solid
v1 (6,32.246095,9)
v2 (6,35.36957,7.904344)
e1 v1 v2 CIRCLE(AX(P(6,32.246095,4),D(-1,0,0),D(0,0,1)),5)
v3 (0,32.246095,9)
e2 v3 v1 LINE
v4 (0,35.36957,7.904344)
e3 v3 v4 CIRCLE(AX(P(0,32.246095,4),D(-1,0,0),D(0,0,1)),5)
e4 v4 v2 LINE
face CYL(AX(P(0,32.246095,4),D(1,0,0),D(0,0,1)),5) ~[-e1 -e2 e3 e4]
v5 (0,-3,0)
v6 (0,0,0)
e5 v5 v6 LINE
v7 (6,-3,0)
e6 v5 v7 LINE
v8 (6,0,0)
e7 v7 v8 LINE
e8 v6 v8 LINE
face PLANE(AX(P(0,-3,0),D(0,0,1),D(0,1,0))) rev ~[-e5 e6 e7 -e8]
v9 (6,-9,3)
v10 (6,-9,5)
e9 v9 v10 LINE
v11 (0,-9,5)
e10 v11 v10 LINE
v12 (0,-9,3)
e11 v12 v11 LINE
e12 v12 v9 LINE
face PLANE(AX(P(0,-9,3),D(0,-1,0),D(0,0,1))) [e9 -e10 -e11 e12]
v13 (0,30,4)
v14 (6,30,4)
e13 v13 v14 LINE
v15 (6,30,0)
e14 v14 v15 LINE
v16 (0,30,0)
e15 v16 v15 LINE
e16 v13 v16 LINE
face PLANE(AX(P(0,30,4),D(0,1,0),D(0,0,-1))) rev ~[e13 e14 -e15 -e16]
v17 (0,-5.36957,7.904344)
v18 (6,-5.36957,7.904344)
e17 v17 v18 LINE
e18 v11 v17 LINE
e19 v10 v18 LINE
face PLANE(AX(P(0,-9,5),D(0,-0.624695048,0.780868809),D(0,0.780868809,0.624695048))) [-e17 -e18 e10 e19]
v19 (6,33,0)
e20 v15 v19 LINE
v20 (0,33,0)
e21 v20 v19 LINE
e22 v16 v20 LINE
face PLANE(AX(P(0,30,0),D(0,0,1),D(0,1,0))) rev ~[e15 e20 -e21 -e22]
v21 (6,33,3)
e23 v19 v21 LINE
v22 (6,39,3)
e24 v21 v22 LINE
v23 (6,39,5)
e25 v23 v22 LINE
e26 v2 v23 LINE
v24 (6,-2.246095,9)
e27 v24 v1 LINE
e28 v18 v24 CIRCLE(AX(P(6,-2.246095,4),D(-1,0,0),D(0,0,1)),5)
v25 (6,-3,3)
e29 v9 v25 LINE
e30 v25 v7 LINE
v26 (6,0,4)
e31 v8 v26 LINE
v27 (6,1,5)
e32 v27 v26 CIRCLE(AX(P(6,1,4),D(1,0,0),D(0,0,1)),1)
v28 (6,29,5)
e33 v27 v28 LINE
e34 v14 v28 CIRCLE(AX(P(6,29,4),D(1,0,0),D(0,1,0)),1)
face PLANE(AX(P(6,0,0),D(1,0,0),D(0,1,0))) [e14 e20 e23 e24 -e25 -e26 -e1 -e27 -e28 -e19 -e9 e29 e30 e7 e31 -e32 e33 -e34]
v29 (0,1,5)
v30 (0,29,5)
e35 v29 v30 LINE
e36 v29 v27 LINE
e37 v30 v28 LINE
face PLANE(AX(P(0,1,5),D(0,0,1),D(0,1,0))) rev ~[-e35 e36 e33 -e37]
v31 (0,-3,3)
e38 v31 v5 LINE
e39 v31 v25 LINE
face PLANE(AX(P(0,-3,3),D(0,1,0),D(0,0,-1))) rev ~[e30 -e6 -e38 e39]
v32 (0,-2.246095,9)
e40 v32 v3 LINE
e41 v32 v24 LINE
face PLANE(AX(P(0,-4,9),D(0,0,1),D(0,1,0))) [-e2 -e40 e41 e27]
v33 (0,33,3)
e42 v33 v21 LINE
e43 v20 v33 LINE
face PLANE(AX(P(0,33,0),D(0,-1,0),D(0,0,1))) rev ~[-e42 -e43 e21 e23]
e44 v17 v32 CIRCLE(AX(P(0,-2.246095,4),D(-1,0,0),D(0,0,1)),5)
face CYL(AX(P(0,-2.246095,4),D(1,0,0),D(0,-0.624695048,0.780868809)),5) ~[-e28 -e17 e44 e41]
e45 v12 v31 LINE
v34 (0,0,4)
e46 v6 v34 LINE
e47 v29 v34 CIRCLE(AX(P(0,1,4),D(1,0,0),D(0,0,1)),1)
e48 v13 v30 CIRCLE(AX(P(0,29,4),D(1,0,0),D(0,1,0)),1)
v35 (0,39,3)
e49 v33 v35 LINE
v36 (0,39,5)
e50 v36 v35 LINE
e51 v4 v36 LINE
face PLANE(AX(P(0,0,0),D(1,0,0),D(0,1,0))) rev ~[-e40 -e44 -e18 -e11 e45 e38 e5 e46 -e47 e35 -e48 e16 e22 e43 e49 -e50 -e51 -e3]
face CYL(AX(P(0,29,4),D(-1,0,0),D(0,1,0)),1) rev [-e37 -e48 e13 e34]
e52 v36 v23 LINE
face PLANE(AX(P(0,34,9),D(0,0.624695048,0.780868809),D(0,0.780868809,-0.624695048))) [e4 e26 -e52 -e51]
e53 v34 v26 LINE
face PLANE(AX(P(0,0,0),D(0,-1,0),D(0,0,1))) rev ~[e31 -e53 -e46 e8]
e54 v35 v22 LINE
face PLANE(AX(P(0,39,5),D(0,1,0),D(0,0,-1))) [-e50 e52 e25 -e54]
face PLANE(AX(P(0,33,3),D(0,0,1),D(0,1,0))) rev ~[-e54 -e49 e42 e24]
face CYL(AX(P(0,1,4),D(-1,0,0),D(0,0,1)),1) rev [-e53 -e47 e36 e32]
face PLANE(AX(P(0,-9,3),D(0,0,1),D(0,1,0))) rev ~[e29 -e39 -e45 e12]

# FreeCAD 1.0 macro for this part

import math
import FreeCAD as App
import Part
import Sketcher

V = App.Vector


def edges_at(feature, points):
    """Names of the edges that pass closest to the given points."""
    edges = feature.Shape.Edges
    near = lambda p: min(range(len(edges)), key=lambda i: edges[i].distToShape(Part.Vertex(*p))[0])
    return sorted({f"Edge{near(p) + 1}" for p in points})

doc = App.newDocument("Part")
body = doc.addObject("PartDesign::Body", "Body")

# Sketch on YZ plane
sketch1 = doc.addObject("Sketcher::SketchObject", "Sketch")
body.addObject(sketch1)
sketch1.AttachmentSupport = (doc.YZ_Plane, [""])
sketch1.MapMode = "FlatFace"
sketch1.addGeometry([
    Part.LineSegment(V(30, 4, 0), V(30, 0, 0)),  # 0
    Part.LineSegment(V(30, 0, 0), V(33, 0, 0)),  # 1
    Part.LineSegment(V(33, 0, 0), V(33, 3, 0)),  # 2
    Part.LineSegment(V(33, 3, 0), V(39, 3, 0)),  # 3
    Part.LineSegment(V(39, 3, 0), V(39, 5, 0)),  # 4
    Part.LineSegment(V(39, 5, 0), V(34, 9, 0)),  # 5
    Part.LineSegment(V(34, 9, 0), V(-4, 9, 0)),  # 6
    Part.LineSegment(V(-4, 9, 0), V(-9, 5, 0)),  # 7
    Part.LineSegment(V(-9, 5, 0), V(-9, 3, 0)),  # 8
    Part.LineSegment(V(-9, 3, 0), V(-3, 3, 0)),  # 9
    Part.LineSegment(V(-3, 3, 0), V(-3, 0, 0)),  # 10
    Part.LineSegment(V(-3, 0, 0), V(0, 0, 0)),  # 11
    Part.LineSegment(V(0, 0, 0), V(0, 4, 0)),  # 12
    Part.ArcOfCircle(Part.Circle(V(1, 4, 0), V(0, 0, 1), 1), math.radians(90), math.radians(180)),  # 13
    Part.LineSegment(V(1, 5, 0), V(29, 5, 0)),  # 14
    Part.ArcOfCircle(Part.Circle(V(29, 4, 0), V(0, 0, 1), 1), math.radians(0), math.radians(90)),  # 15
], False)
sketch1.addConstraint([
    Sketcher.Constraint("Coincident", 0, 2, 1, 1),
    Sketcher.Constraint("Coincident", 1, 2, 2, 1),
    Sketcher.Constraint("Coincident", 2, 2, 3, 1),
    Sketcher.Constraint("Coincident", 3, 2, 4, 1),
    Sketcher.Constraint("Coincident", 4, 2, 5, 1),
    Sketcher.Constraint("Coincident", 5, 2, 6, 1),
    Sketcher.Constraint("Coincident", 6, 2, 7, 1),
    Sketcher.Constraint("Coincident", 7, 2, 8, 1),
    Sketcher.Constraint("Coincident", 8, 2, 9, 1),
    Sketcher.Constraint("Coincident", 9, 2, 10, 1),
    Sketcher.Constraint("Coincident", 10, 2, 11, 1),
    Sketcher.Constraint("Coincident", 11, 2, 12, 1),
    Sketcher.Constraint("Tangent", 12, 2, 13, 2),
    Sketcher.Constraint("Tangent", 13, 1, 14, 1),
    Sketcher.Constraint("Tangent", 14, 2, 15, 2),
    Sketcher.Constraint("Tangent", 15, 1, 0, 1),
    Sketcher.Constraint("Vertical", 0),
    Sketcher.Constraint("Horizontal", 1),
    Sketcher.Constraint("Vertical", 2),
    Sketcher.Constraint("Horizontal", 3),
    Sketcher.Constraint("Vertical", 4),
    Sketcher.Constraint("Horizontal", 6),
    Sketcher.Constraint("Vertical", 8),
    Sketcher.Constraint("Horizontal", 9),
    Sketcher.Constraint("Vertical", 10),
    Sketcher.Constraint("Horizontal", 11),
    Sketcher.Constraint("Vertical", 12),
    Sketcher.Constraint("Horizontal", 14),
    Sketcher.Constraint("Coincident", 11, 2, -1, 1),
    Sketcher.Constraint("Equal", 13, 15),
    Sketcher.Constraint("PointOnObject", 0, 2, -1),
    Sketcher.Constraint("Horizontal", 4, 2, 7, 2),
    Sketcher.Constraint("Horizontal", 3, 2, 8, 2),
    Sketcher.Constraint("Horizontal", 7, 2, 13, 1),
    Sketcher.Constraint("Equal", 3, 9),
    Sketcher.Constraint("Equal", 1, 11),
    Sketcher.Constraint("Equal", 11, 2),
    Sketcher.Constraint("Equal", 5, 7),
    Sketcher.Constraint("Radius", 13, 1.0),
    Sketcher.Constraint("DistanceX", 1, 1, 1, 2, 3.0),
    Sketcher.Constraint("DistanceX", 3, 1, 3, 2, 6.0),
    Sketcher.Constraint("DistanceX", 6, 2, 6, 1, 38.0),
    Sketcher.Constraint("DistanceY", 0, 2, 0, 1, 4.0),
    Sketcher.Constraint("DistanceX", -1, 1, 0, 2, 30.0),
    Sketcher.Constraint("DistanceY", 2, 2, 5, 2, 6.0),
])
pad1 = doc.addObject("PartDesign::Pad", "Pad")
body.addObject(pad1)
pad1.Profile = sketch1
pad1.Length = 6
doc.recompute()

fillet = doc.addObject("PartDesign::Fillet", "Fillet")
body.addObject(fillet)
fillet.Base = (pad1, edges_at(pad1, [(3, -4, 9), (3, 34, 9)]))
fillet.Radius = 5

doc.recompute()
